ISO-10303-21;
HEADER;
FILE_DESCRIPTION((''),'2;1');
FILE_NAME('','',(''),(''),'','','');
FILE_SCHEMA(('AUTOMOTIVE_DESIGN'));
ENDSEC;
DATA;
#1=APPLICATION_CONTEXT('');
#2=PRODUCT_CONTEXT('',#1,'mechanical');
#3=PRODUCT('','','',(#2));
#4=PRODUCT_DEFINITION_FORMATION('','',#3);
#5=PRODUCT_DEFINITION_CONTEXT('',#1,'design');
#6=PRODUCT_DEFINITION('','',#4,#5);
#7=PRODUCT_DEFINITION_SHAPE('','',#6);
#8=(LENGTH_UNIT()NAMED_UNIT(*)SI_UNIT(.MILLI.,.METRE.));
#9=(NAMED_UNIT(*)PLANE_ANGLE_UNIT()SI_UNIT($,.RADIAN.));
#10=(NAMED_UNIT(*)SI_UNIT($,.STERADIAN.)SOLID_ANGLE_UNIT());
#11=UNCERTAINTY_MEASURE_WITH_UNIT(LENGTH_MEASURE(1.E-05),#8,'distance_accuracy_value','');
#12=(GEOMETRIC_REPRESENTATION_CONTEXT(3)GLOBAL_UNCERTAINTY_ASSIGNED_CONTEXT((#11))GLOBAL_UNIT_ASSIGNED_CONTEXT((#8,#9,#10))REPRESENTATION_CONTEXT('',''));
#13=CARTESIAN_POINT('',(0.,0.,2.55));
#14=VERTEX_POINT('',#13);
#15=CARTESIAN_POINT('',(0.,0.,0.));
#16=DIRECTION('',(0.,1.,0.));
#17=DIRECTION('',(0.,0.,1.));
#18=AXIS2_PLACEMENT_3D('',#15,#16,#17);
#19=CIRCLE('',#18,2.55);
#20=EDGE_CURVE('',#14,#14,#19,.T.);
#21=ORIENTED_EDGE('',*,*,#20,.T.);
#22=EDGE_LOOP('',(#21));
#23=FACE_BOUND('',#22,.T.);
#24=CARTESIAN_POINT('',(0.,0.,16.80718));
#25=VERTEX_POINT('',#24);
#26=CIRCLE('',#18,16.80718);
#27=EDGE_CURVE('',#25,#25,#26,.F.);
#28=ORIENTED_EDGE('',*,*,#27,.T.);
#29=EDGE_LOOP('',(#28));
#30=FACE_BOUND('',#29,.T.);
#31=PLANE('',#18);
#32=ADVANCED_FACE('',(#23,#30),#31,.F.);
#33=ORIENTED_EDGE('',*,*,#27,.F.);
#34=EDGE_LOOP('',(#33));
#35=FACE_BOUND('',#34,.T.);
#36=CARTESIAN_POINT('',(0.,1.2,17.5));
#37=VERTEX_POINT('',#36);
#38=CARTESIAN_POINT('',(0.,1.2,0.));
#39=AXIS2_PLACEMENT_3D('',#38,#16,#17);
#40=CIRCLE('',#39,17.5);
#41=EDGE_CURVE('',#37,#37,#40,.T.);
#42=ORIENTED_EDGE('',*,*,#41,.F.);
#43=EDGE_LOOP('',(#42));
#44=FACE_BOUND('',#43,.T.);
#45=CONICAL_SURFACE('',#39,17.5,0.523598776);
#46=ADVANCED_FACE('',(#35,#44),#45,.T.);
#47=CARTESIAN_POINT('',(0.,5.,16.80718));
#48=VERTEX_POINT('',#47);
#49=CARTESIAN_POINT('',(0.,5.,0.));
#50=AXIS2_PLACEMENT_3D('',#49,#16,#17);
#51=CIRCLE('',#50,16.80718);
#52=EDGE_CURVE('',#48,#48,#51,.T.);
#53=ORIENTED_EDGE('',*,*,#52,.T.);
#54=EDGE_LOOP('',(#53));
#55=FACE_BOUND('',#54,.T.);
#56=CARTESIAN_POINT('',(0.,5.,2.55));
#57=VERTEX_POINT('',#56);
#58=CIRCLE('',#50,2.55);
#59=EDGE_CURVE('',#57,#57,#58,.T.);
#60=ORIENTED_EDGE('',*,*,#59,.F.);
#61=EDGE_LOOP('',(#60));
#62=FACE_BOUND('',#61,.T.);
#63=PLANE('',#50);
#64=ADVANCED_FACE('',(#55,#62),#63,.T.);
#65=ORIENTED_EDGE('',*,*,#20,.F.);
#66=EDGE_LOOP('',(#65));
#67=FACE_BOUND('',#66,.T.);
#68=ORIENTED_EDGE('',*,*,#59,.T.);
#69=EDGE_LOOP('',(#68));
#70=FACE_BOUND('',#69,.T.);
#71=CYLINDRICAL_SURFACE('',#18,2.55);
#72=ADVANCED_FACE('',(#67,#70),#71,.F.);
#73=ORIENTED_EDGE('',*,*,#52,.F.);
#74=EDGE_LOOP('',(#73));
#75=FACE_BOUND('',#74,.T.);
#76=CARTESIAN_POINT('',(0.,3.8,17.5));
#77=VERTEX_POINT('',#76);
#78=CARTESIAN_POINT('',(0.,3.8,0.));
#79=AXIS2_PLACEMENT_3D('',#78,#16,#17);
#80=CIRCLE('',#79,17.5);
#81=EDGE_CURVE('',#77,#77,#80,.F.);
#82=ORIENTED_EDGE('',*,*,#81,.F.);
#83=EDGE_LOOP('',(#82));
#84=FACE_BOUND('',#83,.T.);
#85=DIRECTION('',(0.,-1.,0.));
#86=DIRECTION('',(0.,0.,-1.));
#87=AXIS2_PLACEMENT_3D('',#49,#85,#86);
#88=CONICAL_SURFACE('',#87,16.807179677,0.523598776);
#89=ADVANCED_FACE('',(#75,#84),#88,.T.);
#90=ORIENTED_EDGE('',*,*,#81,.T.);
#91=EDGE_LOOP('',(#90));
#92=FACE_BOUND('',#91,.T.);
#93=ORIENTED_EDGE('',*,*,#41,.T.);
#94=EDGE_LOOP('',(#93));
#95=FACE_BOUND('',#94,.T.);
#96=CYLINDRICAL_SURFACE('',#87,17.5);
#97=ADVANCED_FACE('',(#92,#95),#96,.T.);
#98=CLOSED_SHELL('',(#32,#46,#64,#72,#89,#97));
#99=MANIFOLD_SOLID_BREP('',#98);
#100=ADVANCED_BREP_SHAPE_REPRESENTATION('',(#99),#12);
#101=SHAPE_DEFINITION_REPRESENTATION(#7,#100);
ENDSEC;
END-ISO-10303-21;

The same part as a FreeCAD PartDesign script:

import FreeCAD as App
import Part
import Sketcher
from FreeCAD import Vector


def edges_at(feature, points):
    """Names of the edges that pass closest to the given points."""
    edges = feature.Shape.Edges
    near = lambda p: min(range(len(edges)), key=lambda i: edges[i].distToShape(Part.Vertex(*p))[0])
    return sorted({f"Edge{near(p) + 1}" for p in points})

doc = App.newDocument("Part")
body = doc.addObject("PartDesign::Body", "Body")

# Sketch on XZ plane
sketch1 = body.newObject("Sketcher::SketchObject", "Sketch")
sketch1.AttachmentSupport = (doc.getObject("XZ_Plane"), [""])
sketch1.MapMode = "FlatFace"
sketch1.addGeometry(Part.Circle(Vector(0, 0, 0), Vector(0, 0, 1), 17.5), False)
sketch1.addConstraint(Sketcher.Constraint("Coincident", 0, 3, -1, 1))
sketch1.addConstraint(Sketcher.Constraint("Diameter", 0, 35.0))
pad1 = body.newObject("PartDesign::Pad", "Pad")
pad1.Profile = sketch1
pad1.Length = 5
pad1.Reversed = True

# Sketch on XZ plane
sketch2 = body.newObject("Sketcher::SketchObject", "Sketch001")
sketch2.AttachmentSupport = (doc.getObject("XZ_Plane"), [""])
sketch2.MapMode = "FlatFace"
sketch2.AttachmentOffset = App.Placement(Vector(0, 0, -5), App.Rotation())
sketch2.addGeometry(Part.Circle(Vector(0, 0, 0), Vector(0, 0, 1), 2.55), False)
sketch2.addConstraint(Sketcher.Constraint("Coincident", 0, 3, -1, 1))
sketch2.addConstraint(Sketcher.Constraint("Diameter", 0, 5.1))
pocket1 = body.newObject("PartDesign::Pocket", "Pocket")
pocket1.Profile = sketch2
pocket1.Type = "ThroughAll"
pocket1.Midplane = True
doc.recompute()

chamfer = body.newObject("PartDesign::Chamfer", "Chamfer")
chamfer.Base = (pocket1, edges_at(pocket1, [(0, 0, -17.5), (0, 5, -17.5)]))
chamfer.ChamferType = "Two distances"
chamfer.Size = 1.2
chamfer.Size2 = 0.69282

doc.recompute()
